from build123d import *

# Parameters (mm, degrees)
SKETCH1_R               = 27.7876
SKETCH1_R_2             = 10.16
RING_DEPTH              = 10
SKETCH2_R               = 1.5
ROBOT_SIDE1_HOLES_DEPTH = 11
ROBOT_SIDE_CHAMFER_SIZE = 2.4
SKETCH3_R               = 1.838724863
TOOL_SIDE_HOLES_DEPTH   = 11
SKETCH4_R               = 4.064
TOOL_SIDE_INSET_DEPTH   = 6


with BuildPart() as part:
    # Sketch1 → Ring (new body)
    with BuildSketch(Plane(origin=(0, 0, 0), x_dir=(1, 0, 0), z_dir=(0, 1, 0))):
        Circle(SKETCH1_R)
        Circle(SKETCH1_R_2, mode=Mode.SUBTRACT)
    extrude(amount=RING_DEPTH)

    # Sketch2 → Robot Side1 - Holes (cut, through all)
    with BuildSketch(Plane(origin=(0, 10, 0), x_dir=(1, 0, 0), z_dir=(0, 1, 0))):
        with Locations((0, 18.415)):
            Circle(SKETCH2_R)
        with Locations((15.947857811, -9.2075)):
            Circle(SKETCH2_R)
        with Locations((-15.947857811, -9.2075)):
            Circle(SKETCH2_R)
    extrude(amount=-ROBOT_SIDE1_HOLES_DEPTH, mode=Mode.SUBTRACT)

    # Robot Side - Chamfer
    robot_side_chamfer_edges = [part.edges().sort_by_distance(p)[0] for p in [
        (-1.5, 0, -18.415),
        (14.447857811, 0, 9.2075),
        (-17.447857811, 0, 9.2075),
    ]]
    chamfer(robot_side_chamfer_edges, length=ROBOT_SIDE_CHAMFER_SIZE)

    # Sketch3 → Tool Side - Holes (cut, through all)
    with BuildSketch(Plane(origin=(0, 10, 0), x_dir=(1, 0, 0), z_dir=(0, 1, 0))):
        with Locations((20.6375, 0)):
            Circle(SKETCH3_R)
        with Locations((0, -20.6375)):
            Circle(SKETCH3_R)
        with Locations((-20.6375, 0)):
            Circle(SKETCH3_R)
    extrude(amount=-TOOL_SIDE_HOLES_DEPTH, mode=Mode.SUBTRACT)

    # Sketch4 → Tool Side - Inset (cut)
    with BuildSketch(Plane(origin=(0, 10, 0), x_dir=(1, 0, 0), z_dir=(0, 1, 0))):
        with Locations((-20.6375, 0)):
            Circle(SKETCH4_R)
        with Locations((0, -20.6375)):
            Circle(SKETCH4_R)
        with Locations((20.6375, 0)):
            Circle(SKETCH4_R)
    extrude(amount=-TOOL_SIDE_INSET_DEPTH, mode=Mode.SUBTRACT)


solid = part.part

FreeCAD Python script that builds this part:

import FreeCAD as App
import Part
import Sketcher


def edges_at(feature, points):
    """Names of the edges that pass closest to the given points."""
    edges = feature.Shape.Edges
    near = lambda p: min(range(len(edges)), key=lambda i: edges[i].distToShape(Part.Vertex(*p))[0])
    return sorted({f"Edge{near(p) + 1}" for p in points})

doc = App.newDocument("Part")
body = doc.addObject("PartDesign::Body", "Body")

# Sketch on XZ plane
sketch1 = doc.addObject("Sketcher::SketchObject", "Sketch")
body.addObject(sketch1)
sketch1.AttachmentSupport = (doc.XZ_Plane, [""])
sketch1.MapMode = "FlatFace"
sketch1.addGeometry([
    Part.Circle(App.Vector(0, 0, 0), App.Vector(0, 0, 1), 28),
    Part.Circle(App.Vector(0, 0, 0), App.Vector(0, 0, 1), 10),
], False)
sketch1.addConstraint([
    Sketcher.Constraint("Coincident", 0, 3, -1, 1),
    Sketcher.Constraint("Coincident", 1, 3, -1, 1),
    Sketcher.Constraint("Diameter", 1, 20.32),
    Sketcher.Constraint("Diameter", 0, 55.5752),
])
pad1 = doc.addObject("PartDesign::Pad", "Pad")
body.addObject(pad1)
pad1.Profile = sketch1
pad1.Length = 10
pad1.Reversed = True

# Sketch on XZ plane
sketch2 = doc.addObject("Sketcher::SketchObject", "Sketch001")
body.addObject(sketch2)
sketch2.AttachmentSupport = (doc.XZ_Plane, [""])
sketch2.MapMode = "FlatFace"
sketch2.AttachmentOffset = App.Placement(App.Vector(0, 0, -10), App.Rotation())
sketch2.addGeometry([
    Part.Circle(App.Vector(0, -18.4, 0), App.Vector(0, 0, 1), 1.5),
    Part.Circle(App.Vector(15.9, 9.2, 0), App.Vector(0, 0, 1), 1.5),
    Part.Circle(App.Vector(-15.9, 9.2, 0), App.Vector(0, 0, 1), 1.5),
], False)
sketch2.addConstraint([
    Sketcher.Constraint("Equal", 0, 1),
    Sketcher.Constraint("Equal", 1, 2),
    Sketcher.Constraint("Symmetric", 1, 3, 2, 3, -2),
    Sketcher.Constraint("PointOnObject", 0, 3, -2),
    Sketcher.Constraint("Diameter", 0, 3.0),
    Sketcher.Constraint("DistanceY", 0, 3, -1, 1, 18.415),
    Sketcher.Constraint("DistanceY", -1, 1, 1, 3, 9.2075),
    Sketcher.Constraint("DistanceX", -1, 1, 1, 3, 15.947858),
])
pocket1 = doc.addObject("PartDesign::Pocket", "Pocket")
body.addObject(pocket1)
pocket1.Profile = sketch2
pocket1.Type = "ThroughAll"
pocket1.Reversed = True
doc.recompute()

chamfer = doc.addObject("PartDesign::Chamfer", "Chamfer")
body.addObject(chamfer)
chamfer.Base = (pocket1, edges_at(pocket1, [(-1.5, 0, -18.415), (14.448, 0, 9.207), (-17.448, 0, 9.207)]))
chamfer.Size = 2.4

# Sketch on XZ plane
sketch3 = doc.addObject("Sketcher::SketchObject", "Sketch002")
body.addObject(sketch3)
sketch3.AttachmentSupport = (doc.XZ_Plane, [""])
sketch3.MapMode = "FlatFace"
sketch3.AttachmentOffset = App.Placement(App.Vector(0, 0, -10), App.Rotation())
sketch3.addGeometry([
    Part.Circle(App.Vector(20.6, 0, 0), App.Vector(0, 0, 1), 1.8),
    Part.Circle(App.Vector(0, 20.6, 0), App.Vector(0, 0, 1), 1.8),
    Part.Circle(App.Vector(-20.6, 0, 0), App.Vector(0, 0, 1), 1.8),
], False)
sketch3.addConstraint([
    Sketcher.Constraint("Equal", 0, 1),
    Sketcher.Constraint("Equal", 1, 2),
    Sketcher.Constraint("Symmetric", 0, 3, 2, 3, -1, 1),
    Sketcher.Constraint("PointOnObject", 0, 3, -1),
    Sketcher.Constraint("PointOnObject", 1, 3, -2),
    Sketcher.Constraint("Diameter", 0, 3.67745),
    Sketcher.Constraint("DistanceX", 2, 3, 0, 3, 41.275),
    Sketcher.Constraint("DistanceY", -1, 1, 1, 3, 20.6375),
])
pocket2 = doc.addObject("PartDesign::Pocket", "Pocket001")
body.addObject(pocket2)
pocket2.Profile = sketch3
pocket2.Type = "ThroughAll"
pocket2.Reversed = True

# Sketch on XZ plane
sketch4 = doc.addObject("Sketcher::SketchObject", "Sketch003")
body.addObject(sketch4)
sketch4.AttachmentSupport = (doc.XZ_Plane, [""])
sketch4.MapMode = "FlatFace"
sketch4.AttachmentOffset = App.Placement(App.Vector(0, 0, -10), App.Rotation())
sketch4.addGeometry([
    Part.Circle(App.Vector(-20.6, 0, 0), App.Vector(0, 0, 1), 4.1),
    Part.Circle(App.Vector(0, 20.6, 0), App.Vector(0, 0, 1), 4.1),
    Part.Circle(App.Vector(20.6, 0, 0), App.Vector(0, 0, 1), 4.1),
], False)
sketch4.addConstraint([
    Sketcher.Constraint("Equal", 0, 1),
    Sketcher.Constraint("Equal", 1, 2),
    Sketcher.Constraint("Symmetric", 0, 3, 2, 3, -1, 1),
    Sketcher.Constraint("PointOnObject", 0, 3, -1),
    Sketcher.Constraint("PointOnObject", 1, 3, -2),
    Sketcher.Constraint("Diameter", 0, 8.128),
    Sketcher.Constraint("DistanceX", 0, 3, 2, 3, 41.275),
    Sketcher.Constraint("DistanceY", -1, 1, 1, 3, 20.6375),
])
pocket3 = doc.addObject("PartDesign::Pocket", "Pocket002")
body.addObject(pocket3)
pocket3.Profile = sketch4
pocket3.Length = 6
pocket3.Reversed = True

doc.recompute()
